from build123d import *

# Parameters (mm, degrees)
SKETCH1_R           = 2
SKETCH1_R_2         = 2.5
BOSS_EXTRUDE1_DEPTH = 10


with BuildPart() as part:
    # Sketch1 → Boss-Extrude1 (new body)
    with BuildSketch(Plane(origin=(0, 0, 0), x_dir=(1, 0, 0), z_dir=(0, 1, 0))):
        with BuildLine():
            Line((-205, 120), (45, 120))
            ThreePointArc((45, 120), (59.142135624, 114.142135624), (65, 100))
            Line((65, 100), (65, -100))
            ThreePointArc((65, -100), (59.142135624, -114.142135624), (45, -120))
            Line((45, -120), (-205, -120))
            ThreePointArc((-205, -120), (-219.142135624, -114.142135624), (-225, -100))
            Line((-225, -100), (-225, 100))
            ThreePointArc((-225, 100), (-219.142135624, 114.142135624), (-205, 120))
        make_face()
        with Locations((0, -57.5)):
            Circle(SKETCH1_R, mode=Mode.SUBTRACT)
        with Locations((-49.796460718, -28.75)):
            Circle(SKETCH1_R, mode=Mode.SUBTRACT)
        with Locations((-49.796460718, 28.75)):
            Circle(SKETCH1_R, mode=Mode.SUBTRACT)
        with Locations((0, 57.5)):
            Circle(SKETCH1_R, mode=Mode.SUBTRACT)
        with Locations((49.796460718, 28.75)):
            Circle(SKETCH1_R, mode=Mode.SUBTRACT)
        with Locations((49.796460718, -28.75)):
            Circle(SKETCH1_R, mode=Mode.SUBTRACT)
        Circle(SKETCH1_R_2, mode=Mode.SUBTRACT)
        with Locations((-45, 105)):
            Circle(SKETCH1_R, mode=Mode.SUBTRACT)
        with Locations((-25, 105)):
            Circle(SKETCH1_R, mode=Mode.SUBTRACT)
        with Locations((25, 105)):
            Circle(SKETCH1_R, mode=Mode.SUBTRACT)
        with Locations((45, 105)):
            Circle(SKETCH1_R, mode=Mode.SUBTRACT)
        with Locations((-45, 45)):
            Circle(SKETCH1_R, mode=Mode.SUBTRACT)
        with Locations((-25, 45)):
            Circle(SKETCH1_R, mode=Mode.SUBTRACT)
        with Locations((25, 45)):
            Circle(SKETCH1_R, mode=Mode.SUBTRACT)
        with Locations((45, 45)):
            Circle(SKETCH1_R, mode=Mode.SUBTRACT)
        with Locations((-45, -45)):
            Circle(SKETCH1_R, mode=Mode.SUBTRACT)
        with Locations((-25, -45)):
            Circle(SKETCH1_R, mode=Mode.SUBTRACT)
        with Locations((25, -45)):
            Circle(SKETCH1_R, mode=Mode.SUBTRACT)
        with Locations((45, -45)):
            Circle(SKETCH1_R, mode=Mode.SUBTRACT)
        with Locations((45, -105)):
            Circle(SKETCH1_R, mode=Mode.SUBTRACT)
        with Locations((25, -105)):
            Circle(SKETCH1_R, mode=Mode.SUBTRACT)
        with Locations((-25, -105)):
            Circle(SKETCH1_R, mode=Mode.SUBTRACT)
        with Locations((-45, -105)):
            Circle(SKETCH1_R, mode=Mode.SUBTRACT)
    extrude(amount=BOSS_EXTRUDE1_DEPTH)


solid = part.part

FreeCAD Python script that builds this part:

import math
import FreeCAD as App
import Part
import Sketcher

V = App.Vector

doc = App.newDocument("Part")
body = doc.addObject("PartDesign::Body", "Body")

# Sketch on XZ plane
sketch1 = body.newObject("Sketcher::SketchObject", "Sketch")
sketch1.AttachmentSupport = (doc.getObject("XZ_Plane"), [""])
sketch1.MapMode = "FlatFace"
sketch1.addGeometry([
    Part.LineSegment(V(45, -120, 0), V(-205, -120, 0)),  # 0
    Part.ArcOfCircle(Part.Circle(V(-205, -100, 0), V(0, 0, 1), 20), math.radians(180), math.radians(270)),  # 1
    Part.LineSegment(V(-225, -100, 0), V(-225, 100, 0)),  # 2
    Part.ArcOfCircle(Part.Circle(V(-205, 100, 0), V(0, 0, 1), 20), math.radians(90), math.radians(180)),  # 3
    Part.LineSegment(V(-205, 120, 0), V(45, 120, 0)),  # 4
    Part.ArcOfCircle(Part.Circle(V(45, 100, 0), V(0, 0, 1), 20), math.radians(0), math.radians(90)),  # 5
    Part.LineSegment(V(65, 100, 0), V(65, -100, 0)),  # 6
    Part.ArcOfCircle(Part.Circle(V(45, -100, 0), V(0, 0, 1), 20), math.radians(-90), math.radians(0)),  # 7
    Part.Circle(V(45, 105, 0), V(0, 0, 1), 2),  # 8
    Part.Circle(V(25, 105, 0), V(0, 0, 1), 2),  # 9
    Part.Circle(V(45, 45, 0), V(0, 0, 1), 2),  # 10
    Part.Circle(V(49.8, 28.8, 0), V(0, 0, 1), 2),  # 11
    Part.Circle(V(25, 45, 0), V(0, 0, 1), 2),  # 12
    Part.Circle(V(-25, 105, 0), V(0, 0, 1), 2),  # 13
    Part.Circle(V(0, 57.5, 0), V(0, 0, 1), 2),  # 14
    Part.Circle(V(-45, 105, 0), V(0, 0, 1), 2),  # 15
    Part.Circle(V(-25, 45, 0), V(0, 0, 1), 2),  # 16
    Part.Circle(V(0, 0, 0), V(0, 0, 1), 2.5),  # 17
    Part.Circle(V(-45, 45, 0), V(0, 0, 1), 2),  # 18
    Part.Circle(V(-49.8, 28.8, 0), V(0, 0, 1), 2),  # 19
    Part.Circle(V(49.8, -28.8, 0), V(0, 0, 1), 2),  # 20
    Part.Circle(V(45, -45, 0), V(0, 0, 1), 2),  # 21
    Part.Circle(V(25, -45, 0), V(0, 0, 1), 2),  # 22
    Part.Circle(V(45, -105, 0), V(0, 0, 1), 2),  # 23
    Part.Circle(V(25, -105, 0), V(0, 0, 1), 2),  # 24
    Part.Circle(V(-25, -45, 0), V(0, 0, 1), 2),  # 25
    Part.Circle(V(-49.8, -28.8, 0), V(0, 0, 1), 2),  # 26
    Part.Circle(V(-45, -45, 0), V(0, 0, 1), 2),  # 27
    Part.Circle(V(0, -57.5, 0), V(0, 0, 1), 2),  # 28
    Part.Circle(V(-25, -105, 0), V(0, 0, 1), 2),  # 29
    Part.Circle(V(-45, -105, 0), V(0, 0, 1), 2),  # 30
], False)
sketch1.addConstraint([
    Sketcher.Constraint("Tangent", 0, 2, 1, 2),
    Sketcher.Constraint("Tangent", 1, 1, 2, 1),
    Sketcher.Constraint("Tangent", 2, 2, 3, 2),
    Sketcher.Constraint("Tangent", 3, 1, 4, 1),
    Sketcher.Constraint("Tangent", 4, 2, 5, 2),
    Sketcher.Constraint("Tangent", 5, 1, 6, 1),
    Sketcher.Constraint("Tangent", 6, 2, 7, 2),
    Sketcher.Constraint("Tangent", 7, 1, 0, 1),
    Sketcher.Constraint("Horizontal", 0),
    Sketcher.Constraint("Vertical", 2),
    Sketcher.Constraint("Horizontal", 4),
    Sketcher.Constraint("Vertical", 6),
    Sketcher.Constraint("Coincident", 17, 3, -1, 1),
    Sketcher.Constraint("Equal", 1, 3),
    Sketcher.Constraint("Equal", 3, 5),
    Sketcher.Constraint("Equal", 5, 7),
    Sketcher.Constraint("Equal", 8, 9),
    Sketcher.Constraint("Equal", 9, 10),
    Sketcher.Constraint("Equal", 10, 11),
    Sketcher.Constraint("Equal", 11, 12),
    Sketcher.Constraint("Equal", 12, 13),
    Sketcher.Constraint("Equal", 13, 14),
    Sketcher.Constraint("Equal", 14, 15),
    Sketcher.Constraint("Equal", 15, 16),
    Sketcher.Constraint("Equal", 16, 18),
    Sketcher.Constraint("Equal", 18, 19),
    Sketcher.Constraint("Equal", 19, 20),
    Sketcher.Constraint("Equal", 20, 21),
    Sketcher.Constraint("Equal", 21, 22),
    Sketcher.Constraint("Equal", 22, 23),
    Sketcher.Constraint("Equal", 23, 24),
    Sketcher.Constraint("Equal", 24, 25),
    Sketcher.Constraint("Equal", 25, 26),
    Sketcher.Constraint("Equal", 26, 27),
    Sketcher.Constraint("Equal", 27, 28),
    Sketcher.Constraint("Equal", 28, 29),
    Sketcher.Constraint("Equal", 29, 30),
    Sketcher.Constraint("Symmetric", 19, 3, 20, 3, -1, 1),
    Sketcher.Constraint("Symmetric", 18, 3, 21, 3, -1, 1),
    Sketcher.Constraint("Symmetric", 16, 3, 22, 3, -1, 1),
    Sketcher.Constraint("Symmetric", 15, 3, 23, 3, -1, 1),
    Sketcher.Constraint("Symmetric", 13, 3, 24, 3, -1, 1),
    Sketcher.Constraint("Symmetric", 12, 3, 25, 3, -1, 1),
    Sketcher.Constraint("Symmetric", 11, 3, 26, 3, -1, 1),
    Sketcher.Constraint("Symmetric", 10, 3, 27, 3, -1, 1),
    Sketcher.Constraint("Symmetric", 14, 3, 28, 3, -1, 1),
    Sketcher.Constraint("Symmetric", 9, 3, 29, 3, -1, 1),
    Sketcher.Constraint("Symmetric", 8, 3, 30, 3, -1, 1),
    Sketcher.Constraint("Symmetric", 9, 3, 13, 3, -2),
    Sketcher.Constraint("Symmetric", 8, 3, 15, 3, -2),
    Sketcher.Constraint("Symmetric", 12, 3, 16, 3, -2),
    Sketcher.Constraint("Symmetric", 10, 3, 18, 3, -2),
    Sketcher.Constraint("Symmetric", 11, 3, 19, 3, -2),
    Sketcher.Constraint("PointOnObject", 14, 3, -2),
    Sketcher.Constraint("Horizontal", 8, 3, 9, 3),
    Sketcher.Constraint("Horizontal", 10, 3, 12, 3),
    Sketcher.Constraint("Vertical", 7, 3, 8, 3),
    Sketcher.Constraint("Vertical", 8, 3, 10, 3),
    Sketcher.Constraint("Vertical", 9, 3, 12, 3),
    Sketcher.Constraint("Diameter", 8, 4.0),
    Sketcher.Constraint("Diameter", 17, 5.0),
    Sketcher.Constraint("Radius", 1, 20.0),
    Sketcher.Constraint("DistanceX", 0, 2, 0, 1, 250.0),
    Sketcher.Constraint("DistanceY", 2, 1, 2, 2, 200.0),
    Sketcher.Constraint("DistanceX", 1, 3, -1, 1, 205.0),
    Sketcher.Constraint("DistanceY", 1, 3, -1, 1, 100.0),
    Sketcher.Constraint("DistanceY", -1, 1, 8, 3, 105.0),
    Sketcher.Constraint("DistanceX", -1, 1, 9, 3, 25.0),
    Sketcher.Constraint("DistanceY", -1, 1, 10, 3, 45.0),
    Sketcher.Constraint("DistanceY", -1, 1, 14, 3, 57.5),
    Sketcher.Constraint("DistanceY", 20, 3, 11, 3, 57.5),
    Sketcher.Constraint("DistanceX", -1, 1, 11, 3, 49.796461),
])
pad1 = body.newObject("PartDesign::Pad", "Pad")
pad1.Profile = sketch1
pad1.Length = 10
pad1.Reversed = True

doc.recompute()
